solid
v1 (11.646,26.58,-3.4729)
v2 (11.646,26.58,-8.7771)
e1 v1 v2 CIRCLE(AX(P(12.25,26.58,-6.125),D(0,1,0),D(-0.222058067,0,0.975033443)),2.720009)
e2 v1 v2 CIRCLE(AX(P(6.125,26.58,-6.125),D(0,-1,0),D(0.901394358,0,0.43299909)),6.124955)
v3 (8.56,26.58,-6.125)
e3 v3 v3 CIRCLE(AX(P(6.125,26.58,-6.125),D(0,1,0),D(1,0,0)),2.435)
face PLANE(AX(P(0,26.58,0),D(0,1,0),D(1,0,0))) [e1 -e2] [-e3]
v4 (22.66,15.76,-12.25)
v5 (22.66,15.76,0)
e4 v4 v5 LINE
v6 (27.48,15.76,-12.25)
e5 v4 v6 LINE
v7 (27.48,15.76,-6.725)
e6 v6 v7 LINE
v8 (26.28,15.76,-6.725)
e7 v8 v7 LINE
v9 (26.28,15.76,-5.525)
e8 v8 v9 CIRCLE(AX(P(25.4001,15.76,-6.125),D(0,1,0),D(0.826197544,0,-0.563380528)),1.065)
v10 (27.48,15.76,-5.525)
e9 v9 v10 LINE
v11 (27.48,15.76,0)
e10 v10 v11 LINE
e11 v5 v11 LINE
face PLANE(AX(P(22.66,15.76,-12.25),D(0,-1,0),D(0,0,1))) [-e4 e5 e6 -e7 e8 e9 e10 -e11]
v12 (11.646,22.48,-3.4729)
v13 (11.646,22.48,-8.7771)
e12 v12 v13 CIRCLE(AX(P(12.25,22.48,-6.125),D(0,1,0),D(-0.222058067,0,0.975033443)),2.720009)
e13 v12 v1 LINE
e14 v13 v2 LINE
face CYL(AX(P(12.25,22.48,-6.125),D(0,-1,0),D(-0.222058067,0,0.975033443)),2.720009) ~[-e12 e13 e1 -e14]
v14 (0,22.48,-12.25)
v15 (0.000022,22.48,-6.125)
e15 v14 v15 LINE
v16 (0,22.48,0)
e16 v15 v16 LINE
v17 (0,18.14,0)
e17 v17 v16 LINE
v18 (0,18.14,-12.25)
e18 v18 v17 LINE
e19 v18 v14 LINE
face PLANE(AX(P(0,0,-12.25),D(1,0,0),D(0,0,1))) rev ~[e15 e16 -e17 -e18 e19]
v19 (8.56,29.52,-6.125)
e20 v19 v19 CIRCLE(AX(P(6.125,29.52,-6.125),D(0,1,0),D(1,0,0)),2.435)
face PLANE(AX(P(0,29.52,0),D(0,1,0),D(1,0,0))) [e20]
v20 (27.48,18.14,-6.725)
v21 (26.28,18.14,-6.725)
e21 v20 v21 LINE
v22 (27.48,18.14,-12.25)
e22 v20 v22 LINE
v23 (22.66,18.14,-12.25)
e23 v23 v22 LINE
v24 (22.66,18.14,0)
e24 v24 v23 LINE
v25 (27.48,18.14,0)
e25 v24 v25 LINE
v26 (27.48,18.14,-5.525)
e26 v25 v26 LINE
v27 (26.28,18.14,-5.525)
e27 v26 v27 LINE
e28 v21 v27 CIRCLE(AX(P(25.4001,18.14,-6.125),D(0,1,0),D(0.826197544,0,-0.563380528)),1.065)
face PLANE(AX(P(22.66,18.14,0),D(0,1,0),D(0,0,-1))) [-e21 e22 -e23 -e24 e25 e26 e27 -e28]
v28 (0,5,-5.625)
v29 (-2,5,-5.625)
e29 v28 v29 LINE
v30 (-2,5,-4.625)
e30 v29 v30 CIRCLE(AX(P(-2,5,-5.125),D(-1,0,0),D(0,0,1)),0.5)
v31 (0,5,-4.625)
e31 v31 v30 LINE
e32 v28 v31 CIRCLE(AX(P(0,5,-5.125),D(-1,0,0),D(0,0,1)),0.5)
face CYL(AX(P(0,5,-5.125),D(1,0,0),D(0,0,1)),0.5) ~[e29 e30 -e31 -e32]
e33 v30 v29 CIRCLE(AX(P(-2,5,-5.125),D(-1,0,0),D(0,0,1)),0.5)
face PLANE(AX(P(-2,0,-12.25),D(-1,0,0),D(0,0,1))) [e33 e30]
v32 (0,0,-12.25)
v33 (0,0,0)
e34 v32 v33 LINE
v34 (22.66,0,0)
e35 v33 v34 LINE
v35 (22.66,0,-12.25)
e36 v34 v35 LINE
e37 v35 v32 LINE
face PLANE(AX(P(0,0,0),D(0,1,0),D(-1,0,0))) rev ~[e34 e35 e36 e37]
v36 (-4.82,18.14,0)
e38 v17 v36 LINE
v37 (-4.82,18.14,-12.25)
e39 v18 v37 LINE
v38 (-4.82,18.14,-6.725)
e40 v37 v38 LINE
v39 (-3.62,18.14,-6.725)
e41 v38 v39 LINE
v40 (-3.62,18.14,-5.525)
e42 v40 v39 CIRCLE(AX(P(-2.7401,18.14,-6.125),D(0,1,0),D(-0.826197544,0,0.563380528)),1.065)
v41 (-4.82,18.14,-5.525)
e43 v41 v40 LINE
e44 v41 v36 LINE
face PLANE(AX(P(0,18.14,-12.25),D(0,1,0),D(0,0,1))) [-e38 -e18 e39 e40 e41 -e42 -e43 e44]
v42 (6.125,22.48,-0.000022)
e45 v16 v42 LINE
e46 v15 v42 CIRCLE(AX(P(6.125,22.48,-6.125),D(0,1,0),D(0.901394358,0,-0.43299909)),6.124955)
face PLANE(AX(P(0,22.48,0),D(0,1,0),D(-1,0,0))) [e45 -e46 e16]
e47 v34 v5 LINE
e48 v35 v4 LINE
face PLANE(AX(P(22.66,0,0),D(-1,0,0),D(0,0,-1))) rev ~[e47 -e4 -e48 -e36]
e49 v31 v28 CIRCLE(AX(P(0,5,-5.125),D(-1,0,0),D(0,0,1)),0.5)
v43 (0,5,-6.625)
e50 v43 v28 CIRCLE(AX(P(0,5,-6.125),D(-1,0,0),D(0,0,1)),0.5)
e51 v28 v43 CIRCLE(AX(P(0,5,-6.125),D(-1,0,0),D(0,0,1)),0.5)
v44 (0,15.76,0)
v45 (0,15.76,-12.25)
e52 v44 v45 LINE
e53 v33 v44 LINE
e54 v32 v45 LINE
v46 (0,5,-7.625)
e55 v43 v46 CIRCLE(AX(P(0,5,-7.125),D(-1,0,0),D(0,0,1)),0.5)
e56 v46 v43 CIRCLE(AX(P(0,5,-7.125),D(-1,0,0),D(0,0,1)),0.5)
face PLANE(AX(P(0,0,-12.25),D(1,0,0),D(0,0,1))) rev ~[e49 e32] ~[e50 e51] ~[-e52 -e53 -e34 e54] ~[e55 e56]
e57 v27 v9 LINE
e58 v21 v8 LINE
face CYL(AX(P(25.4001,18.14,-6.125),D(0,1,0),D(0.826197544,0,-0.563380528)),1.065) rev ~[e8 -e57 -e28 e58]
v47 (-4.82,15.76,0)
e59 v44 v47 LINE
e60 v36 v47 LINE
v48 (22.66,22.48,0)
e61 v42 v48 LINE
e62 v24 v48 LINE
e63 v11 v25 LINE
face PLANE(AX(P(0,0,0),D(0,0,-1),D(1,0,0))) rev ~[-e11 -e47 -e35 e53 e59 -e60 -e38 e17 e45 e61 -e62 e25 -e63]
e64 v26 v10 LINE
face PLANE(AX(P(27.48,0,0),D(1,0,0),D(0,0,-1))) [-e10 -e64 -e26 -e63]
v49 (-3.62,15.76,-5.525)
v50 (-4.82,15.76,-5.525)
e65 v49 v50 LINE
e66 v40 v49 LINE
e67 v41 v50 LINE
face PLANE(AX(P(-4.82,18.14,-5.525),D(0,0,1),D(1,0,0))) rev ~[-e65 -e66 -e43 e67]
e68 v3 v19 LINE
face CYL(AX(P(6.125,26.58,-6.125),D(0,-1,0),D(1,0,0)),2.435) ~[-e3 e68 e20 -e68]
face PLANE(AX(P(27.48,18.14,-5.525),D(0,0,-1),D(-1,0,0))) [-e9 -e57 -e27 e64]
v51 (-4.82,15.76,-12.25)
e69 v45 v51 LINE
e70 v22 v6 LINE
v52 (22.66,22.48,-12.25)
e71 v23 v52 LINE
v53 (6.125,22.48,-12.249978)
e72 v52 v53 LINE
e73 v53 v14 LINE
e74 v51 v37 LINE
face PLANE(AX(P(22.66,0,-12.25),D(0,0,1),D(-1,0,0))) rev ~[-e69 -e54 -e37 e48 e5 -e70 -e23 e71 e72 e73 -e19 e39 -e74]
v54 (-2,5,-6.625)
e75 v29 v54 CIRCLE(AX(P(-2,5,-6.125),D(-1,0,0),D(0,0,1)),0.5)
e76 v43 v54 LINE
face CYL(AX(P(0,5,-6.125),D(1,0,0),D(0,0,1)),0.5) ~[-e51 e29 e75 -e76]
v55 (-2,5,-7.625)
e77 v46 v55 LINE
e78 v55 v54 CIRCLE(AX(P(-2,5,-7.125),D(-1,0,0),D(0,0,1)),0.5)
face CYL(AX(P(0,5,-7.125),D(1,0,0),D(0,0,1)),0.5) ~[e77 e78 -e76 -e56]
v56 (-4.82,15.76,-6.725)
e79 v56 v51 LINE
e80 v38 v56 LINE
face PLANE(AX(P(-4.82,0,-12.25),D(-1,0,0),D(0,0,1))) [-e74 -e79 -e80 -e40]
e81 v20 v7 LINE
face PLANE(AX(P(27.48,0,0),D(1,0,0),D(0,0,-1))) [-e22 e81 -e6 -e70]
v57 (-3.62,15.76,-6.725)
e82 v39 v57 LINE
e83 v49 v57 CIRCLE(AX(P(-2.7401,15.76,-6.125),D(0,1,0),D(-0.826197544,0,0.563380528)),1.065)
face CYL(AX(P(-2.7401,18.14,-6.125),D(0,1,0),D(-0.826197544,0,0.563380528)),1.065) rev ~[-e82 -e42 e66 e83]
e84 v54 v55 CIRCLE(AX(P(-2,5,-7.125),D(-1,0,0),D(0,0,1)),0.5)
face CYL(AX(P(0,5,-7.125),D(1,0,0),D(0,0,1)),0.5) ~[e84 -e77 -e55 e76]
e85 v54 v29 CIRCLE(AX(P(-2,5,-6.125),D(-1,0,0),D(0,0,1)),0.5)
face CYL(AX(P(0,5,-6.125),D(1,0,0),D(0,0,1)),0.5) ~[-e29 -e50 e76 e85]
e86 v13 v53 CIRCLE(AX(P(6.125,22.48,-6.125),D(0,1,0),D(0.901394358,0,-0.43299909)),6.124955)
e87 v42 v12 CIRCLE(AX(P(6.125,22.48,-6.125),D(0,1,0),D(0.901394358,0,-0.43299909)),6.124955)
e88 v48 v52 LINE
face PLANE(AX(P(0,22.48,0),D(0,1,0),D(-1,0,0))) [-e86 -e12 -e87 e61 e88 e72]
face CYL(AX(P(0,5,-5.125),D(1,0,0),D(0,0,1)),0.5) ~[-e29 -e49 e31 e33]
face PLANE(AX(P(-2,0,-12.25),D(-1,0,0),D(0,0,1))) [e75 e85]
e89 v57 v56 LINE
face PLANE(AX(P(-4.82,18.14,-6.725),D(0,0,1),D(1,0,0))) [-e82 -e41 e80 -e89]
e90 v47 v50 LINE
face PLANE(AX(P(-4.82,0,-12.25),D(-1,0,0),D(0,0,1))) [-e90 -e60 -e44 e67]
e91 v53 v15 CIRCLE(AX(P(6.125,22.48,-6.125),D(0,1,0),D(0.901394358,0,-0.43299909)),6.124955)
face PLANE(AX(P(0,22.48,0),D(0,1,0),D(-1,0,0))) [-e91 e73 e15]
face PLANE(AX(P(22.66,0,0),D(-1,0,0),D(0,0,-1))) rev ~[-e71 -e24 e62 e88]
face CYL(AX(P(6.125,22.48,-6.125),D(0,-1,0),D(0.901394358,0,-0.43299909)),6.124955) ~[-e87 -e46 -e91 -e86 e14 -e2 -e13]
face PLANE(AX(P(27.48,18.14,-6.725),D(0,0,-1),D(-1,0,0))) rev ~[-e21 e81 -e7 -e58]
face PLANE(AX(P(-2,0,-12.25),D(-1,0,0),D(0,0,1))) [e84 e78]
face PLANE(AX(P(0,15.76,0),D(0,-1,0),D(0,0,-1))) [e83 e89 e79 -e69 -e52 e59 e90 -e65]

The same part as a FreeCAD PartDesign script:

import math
import FreeCAD as App
import Part
import Sketcher
from FreeCAD import Vector


def add_polygon(sketch, points):
    """Adds a closed chain of lines whose ends are joined by coincident constraints."""
    first, n = sketch.GeometryCount, len(points)
    for a, b in zip(points, points[1:] + points[:1]):
        sketch.addGeometry(Part.LineSegment(App.Vector(*a, 0), App.Vector(*b, 0)), False)
    for i in range(n):
        sketch.addConstraint(Sketcher.Constraint("Coincident", first + i, 2, first + (i + 1) % n, 1))

doc = App.newDocument("Part")
body = doc.addObject("PartDesign::Body", "Body")

# Sketch on XZ plane
sketch1 = body.newObject("Sketcher::SketchObject", "Sketch")
sketch1.AttachmentSupport = (doc.getObject("XZ_Plane"), [""])
sketch1.MapMode = "FlatFace"
add_polygon(sketch1, [(0, -12), (0, 0), (23, 0), (23, -12)])  # lines 0-3
sketch1.addConstraint([
    Sketcher.Constraint("Vertical", 0),
    Sketcher.Constraint("Horizontal", 1),
    Sketcher.Constraint("Vertical", 2),
    Sketcher.Constraint("Horizontal", 3),
    Sketcher.Constraint("Coincident", 0, 2, -1, 1),
    Sketcher.Constraint("DistanceX", 1, 1, 1, 2, 22.66),
    Sketcher.Constraint("DistanceY", 0, 1, 0, 2, 12.25),
])
pad1 = body.newObject("PartDesign::Pad", "Pad")
pad1.Profile = sketch1
pad1.Length = 22.48
pad1.Reversed = True

# Sketch on YZ plane
sketch2 = body.newObject("Sketcher::SketchObject", "Sketch001")
sketch2.AttachmentSupport = (doc.getObject("YZ_Plane"), [""])
sketch2.MapMode = "FlatFace"
add_polygon(sketch2, [(18.1, -12.2), (15.8, -12.2), (15.8, 0), (18.1, 0)])  # lines 0-3
sketch2.addConstraint([
    Sketcher.Constraint("Horizontal", 0),
    Sketcher.Constraint("Vertical", 1),
    Sketcher.Constraint("Horizontal", 2),
    Sketcher.Constraint("Vertical", 3),
    Sketcher.Constraint("PointOnObject", 1, 2, -1),
    Sketcher.Constraint("DistanceX", 0, 2, 0, 1, 2.38),
    Sketcher.Constraint("DistanceY", 1, 1, 1, 2, 12.25),
    Sketcher.Constraint("DistanceX", -1, 1, 0, 2, 15.76),
])
pad2 = body.newObject("PartDesign::Pad", "Pad001")
pad2.Profile = sketch2
pad2.Length = 4.82
pad2.Reversed = True

# Sketch on YZ plane
sketch3 = body.newObject("Sketcher::SketchObject", "Sketch002")
sketch3.AttachmentSupport = (doc.getObject("YZ_Plane"), [""])
sketch3.MapMode = "FlatFace"
sketch3.AttachmentOffset = App.Placement(Vector(0, 0, 22.66), App.Rotation())
add_polygon(sketch3, [(18.1, -12.2), (18.1, 0), (15.8, 0), (15.8, -12.2)])  # lines 0-3
sketch3.addConstraint([
    Sketcher.Constraint("Vertical", 0),
    Sketcher.Constraint("Horizontal", 1),
    Sketcher.Constraint("Vertical", 2),
    Sketcher.Constraint("Horizontal", 3),
    Sketcher.Constraint("PointOnObject", 0, 2, -1),
    Sketcher.Constraint("DistanceX", 1, 2, 1, 1, 2.38),
    Sketcher.Constraint("DistanceY", 0, 1, 0, 2, 12.25),
    Sketcher.Constraint("DistanceX", -1, 1, 0, 2, 18.14),
])
pad3 = body.newObject("PartDesign::Pad", "Pad002")
pad3.Profile = sketch3
pad3.Length = 4.82

# Sketch on XZ plane
sketch4 = body.newObject("Sketcher::SketchObject", "Sketch003")
sketch4.AttachmentSupport = (doc.getObject("XZ_Plane"), [""])
sketch4.MapMode = "FlatFace"
sketch4.AttachmentOffset = App.Placement(Vector(0, 0, -22.48), App.Rotation())
sketch4.addGeometry([
    Part.ArcOfCircle(Part.Circle(Vector(12.2, -6.1, 0), Vector(0, 0, 1), 2.7), math.radians(-103), math.radians(103)),
    Part.ArcOfCircle(Part.Circle(Vector(6.1, -6.1, 0), Vector(0, 0, 1), 6.1), math.radians(26), math.radians(334)),
], False)
sketch4.addConstraint([
    Sketcher.Constraint("Coincident", 0, 1, 1, 2),
    Sketcher.Constraint("Coincident", 1, 1, 0, 2),
    Sketcher.Constraint("Horizontal", 0, 3, 1, 3),
    Sketcher.Constraint("Radius", 0, 2.72),
    Sketcher.Constraint("Radius", 1, 6.125),
    Sketcher.Constraint("DistanceX", -1, 1, 0, 3, 12.25),
    Sketcher.Constraint("DistanceY", 0, 3, -1, 1, 6.125),
    Sketcher.Constraint("DistanceX", -1, 1, 1, 3, 6.125),
])
pad4 = body.newObject("PartDesign::Pad", "Pad003")
pad4.Profile = sketch4
pad4.Length = 4.1
pad4.Reversed = True

# Sketch on XZ plane
sketch5 = body.newObject("Sketcher::SketchObject", "Sketch004")
sketch5.AttachmentSupport = (doc.getObject("XZ_Plane"), [""])
sketch5.MapMode = "FlatFace"
sketch5.AttachmentOffset = App.Placement(Vector(0, 0, -26.58), App.Rotation())
sketch5.addGeometry(Part.Circle(Vector(6.1, -6.1, 0), Vector(0, 0, 1), 2.4), False)
sketch5.addConstraint([
    Sketcher.Constraint("Diameter", 0, 4.87),
    Sketcher.Constraint("DistanceX", -1, 1, 0, 3, 6.125),
    Sketcher.Constraint("DistanceY", 0, 3, -1, 1, 6.125),
])
pad5 = body.newObject("PartDesign::Pad", "Pad004")
pad5.Profile = sketch5
pad5.Length = 2.94
pad5.Reversed = True

# Sketch on XZ plane
sketch6 = body.newObject("Sketcher::SketchObject", "Sketch005")
sketch6.AttachmentSupport = (doc.getObject("XZ_Plane"), [""])
sketch6.MapMode = "FlatFace"
sketch6.AttachmentOffset = App.Placement(Vector(0, 0, -18.14), App.Rotation())
sketch6.addGeometry([
    Part.LineSegment(Vector(27.5, -6.7, 0), Vector(26.3, -6.7, 0)),
    Part.ArcOfCircle(Part.Circle(Vector(25.4, -6.1, 0), Vector(0, 0, 1), 1.1), math.radians(34), math.radians(326)),
    Part.LineSegment(Vector(26.3, -5.5, 0), Vector(27.5, -5.5, 0)),
    Part.LineSegment(Vector(27.5, -5.5, 0), Vector(27.5, -6.7, 0)),
], False)
sketch6.addConstraint([
    Sketcher.Constraint("Coincident", 0, 2, 1, 2),
    Sketcher.Constraint("Coincident", 1, 1, 2, 1),
    Sketcher.Constraint("Coincident", 2, 2, 3, 1),
    Sketcher.Constraint("Coincident", 3, 2, 0, 1),
    Sketcher.Constraint("Horizontal", 0),
    Sketcher.Constraint("Horizontal", 2),
    Sketcher.Constraint("Vertical", 3),
    Sketcher.Constraint("Vertical", 0, 2, 1, 1),
    Sketcher.Constraint("Equal", 2, 3),
    Sketcher.Constraint("DistanceX", 0, 2, 0, 1, 1.2),
    Sketcher.Constraint("Radius", 1, 1.065),
    Sketcher.Constraint("DistanceY", 1, 3, -1, 1, 6.125),
    Sketcher.Constraint("DistanceX", -1, 1, 1, 3, 25.4),
])
pocket1 = body.newObject("PartDesign::Pocket", "Pocket")
pocket1.Profile = sketch6
pocket1.Type = "ThroughAll"
pocket1.Reversed = True

# Sketch on XZ plane
sketch7 = body.newObject("Sketcher::SketchObject", "Sketch006")
sketch7.AttachmentSupport = (doc.getObject("XZ_Plane"), [""])
sketch7.MapMode = "FlatFace"
sketch7.AttachmentOffset = App.Placement(Vector(0, 0, -18.14), App.Rotation())
sketch7.addGeometry([
    Part.LineSegment(Vector(-4.8, -5.5, 0), Vector(-3.6, -5.5, 0)),
    Part.ArcOfCircle(Part.Circle(Vector(-2.7, -6.1, 0), Vector(0, 0, 1), 1.1), math.radians(-146), math.radians(146)),
    Part.LineSegment(Vector(-3.6, -6.7, 0), Vector(-4.8, -6.7, 0)),
    Part.LineSegment(Vector(-4.8, -6.7, 0), Vector(-4.8, -5.5, 0)),
], False)
sketch7.addConstraint([
    Sketcher.Constraint("Coincident", 0, 2, 1, 2),
    Sketcher.Constraint("Coincident", 1, 1, 2, 1),
    Sketcher.Constraint("Coincident", 2, 2, 3, 1),
    Sketcher.Constraint("Coincident", 3, 2, 0, 1),
    Sketcher.Constraint("Horizontal", 0),
    Sketcher.Constraint("Horizontal", 2),
    Sketcher.Constraint("Vertical", 3),
    Sketcher.Constraint("Vertical", 0, 2, 1, 1),
    Sketcher.Constraint("Equal", 2, 3),
    Sketcher.Constraint("DistanceX", 0, 1, 0, 2, 1.2),
    Sketcher.Constraint("Radius", 1, 1.065),
    Sketcher.Constraint("DistanceY", 1, 3, -1, 1, 6.125),
    Sketcher.Constraint("DistanceX", 1, 3, -1, 1, 2.74),
])
pocket2 = body.newObject("PartDesign::Pocket", "Pocket001")
pocket2.Profile = sketch7
pocket2.Type = "ThroughAll"
pocket2.Reversed = True

# Sketch on YZ plane
sketch8 = body.newObject("Sketcher::SketchObject", "Sketch007")
sketch8.AttachmentSupport = (doc.getObject("YZ_Plane"), [""])
sketch8.MapMode = "FlatFace"
sketch8.addGeometry([
    Part.Circle(Vector(5, -7.1, 0), Vector(0, 0, 1), 0.5),
    Part.Circle(Vector(5, -5.1, 0), Vector(0, 0, 1), 0.5),
    Part.ArcOfCircle(Part.Circle(Vector(5, -6.1, 0), Vector(0, 0, 1), 0.5), math.radians(90), math.radians(270)),
    Part.ArcOfCircle(Part.Circle(Vector(5, -6.1, 0), Vector(0, 0, 1), 0.5), math.radians(-90), math.radians(90)),
], False)
sketch8.addConstraint([
    Sketcher.Constraint("Tangent", 2, 1, 3, 2),
    Sketcher.Constraint("Coincident", 3, 1, 2, 2),
    Sketcher.Constraint("Equal", 0, 1),
    Sketcher.Constraint("Equal", 1, 2),
    Sketcher.Constraint("Vertical", 0, 3, 1, 3),
    Sketcher.Constraint("Vertical", 1, 3, 2, 3),
    Sketcher.Constraint("Vertical", 3, 3, 2, 1),
    Sketcher.Constraint("Vertical", 2, 1, 3, 1),
    Sketcher.Constraint("Diameter", 0, 1.0),
    Sketcher.Constraint("DistanceX", -1, 1, 0, 3, 5.0),
    Sketcher.Constraint("DistanceY", 0, 3, 2, 3, 1.0),
    Sketcher.Constraint("DistanceY", 2, 3, 1, 3, 1.0),
    Sketcher.Constraint("DistanceY", 2, 3, -1, 1, 6.125),
])
pad6 = body.newObject("PartDesign::Pad", "Pad005")
pad6.Profile = sketch8
pad6.Length = 2
pad6.Reversed = True

doc.recompute()
